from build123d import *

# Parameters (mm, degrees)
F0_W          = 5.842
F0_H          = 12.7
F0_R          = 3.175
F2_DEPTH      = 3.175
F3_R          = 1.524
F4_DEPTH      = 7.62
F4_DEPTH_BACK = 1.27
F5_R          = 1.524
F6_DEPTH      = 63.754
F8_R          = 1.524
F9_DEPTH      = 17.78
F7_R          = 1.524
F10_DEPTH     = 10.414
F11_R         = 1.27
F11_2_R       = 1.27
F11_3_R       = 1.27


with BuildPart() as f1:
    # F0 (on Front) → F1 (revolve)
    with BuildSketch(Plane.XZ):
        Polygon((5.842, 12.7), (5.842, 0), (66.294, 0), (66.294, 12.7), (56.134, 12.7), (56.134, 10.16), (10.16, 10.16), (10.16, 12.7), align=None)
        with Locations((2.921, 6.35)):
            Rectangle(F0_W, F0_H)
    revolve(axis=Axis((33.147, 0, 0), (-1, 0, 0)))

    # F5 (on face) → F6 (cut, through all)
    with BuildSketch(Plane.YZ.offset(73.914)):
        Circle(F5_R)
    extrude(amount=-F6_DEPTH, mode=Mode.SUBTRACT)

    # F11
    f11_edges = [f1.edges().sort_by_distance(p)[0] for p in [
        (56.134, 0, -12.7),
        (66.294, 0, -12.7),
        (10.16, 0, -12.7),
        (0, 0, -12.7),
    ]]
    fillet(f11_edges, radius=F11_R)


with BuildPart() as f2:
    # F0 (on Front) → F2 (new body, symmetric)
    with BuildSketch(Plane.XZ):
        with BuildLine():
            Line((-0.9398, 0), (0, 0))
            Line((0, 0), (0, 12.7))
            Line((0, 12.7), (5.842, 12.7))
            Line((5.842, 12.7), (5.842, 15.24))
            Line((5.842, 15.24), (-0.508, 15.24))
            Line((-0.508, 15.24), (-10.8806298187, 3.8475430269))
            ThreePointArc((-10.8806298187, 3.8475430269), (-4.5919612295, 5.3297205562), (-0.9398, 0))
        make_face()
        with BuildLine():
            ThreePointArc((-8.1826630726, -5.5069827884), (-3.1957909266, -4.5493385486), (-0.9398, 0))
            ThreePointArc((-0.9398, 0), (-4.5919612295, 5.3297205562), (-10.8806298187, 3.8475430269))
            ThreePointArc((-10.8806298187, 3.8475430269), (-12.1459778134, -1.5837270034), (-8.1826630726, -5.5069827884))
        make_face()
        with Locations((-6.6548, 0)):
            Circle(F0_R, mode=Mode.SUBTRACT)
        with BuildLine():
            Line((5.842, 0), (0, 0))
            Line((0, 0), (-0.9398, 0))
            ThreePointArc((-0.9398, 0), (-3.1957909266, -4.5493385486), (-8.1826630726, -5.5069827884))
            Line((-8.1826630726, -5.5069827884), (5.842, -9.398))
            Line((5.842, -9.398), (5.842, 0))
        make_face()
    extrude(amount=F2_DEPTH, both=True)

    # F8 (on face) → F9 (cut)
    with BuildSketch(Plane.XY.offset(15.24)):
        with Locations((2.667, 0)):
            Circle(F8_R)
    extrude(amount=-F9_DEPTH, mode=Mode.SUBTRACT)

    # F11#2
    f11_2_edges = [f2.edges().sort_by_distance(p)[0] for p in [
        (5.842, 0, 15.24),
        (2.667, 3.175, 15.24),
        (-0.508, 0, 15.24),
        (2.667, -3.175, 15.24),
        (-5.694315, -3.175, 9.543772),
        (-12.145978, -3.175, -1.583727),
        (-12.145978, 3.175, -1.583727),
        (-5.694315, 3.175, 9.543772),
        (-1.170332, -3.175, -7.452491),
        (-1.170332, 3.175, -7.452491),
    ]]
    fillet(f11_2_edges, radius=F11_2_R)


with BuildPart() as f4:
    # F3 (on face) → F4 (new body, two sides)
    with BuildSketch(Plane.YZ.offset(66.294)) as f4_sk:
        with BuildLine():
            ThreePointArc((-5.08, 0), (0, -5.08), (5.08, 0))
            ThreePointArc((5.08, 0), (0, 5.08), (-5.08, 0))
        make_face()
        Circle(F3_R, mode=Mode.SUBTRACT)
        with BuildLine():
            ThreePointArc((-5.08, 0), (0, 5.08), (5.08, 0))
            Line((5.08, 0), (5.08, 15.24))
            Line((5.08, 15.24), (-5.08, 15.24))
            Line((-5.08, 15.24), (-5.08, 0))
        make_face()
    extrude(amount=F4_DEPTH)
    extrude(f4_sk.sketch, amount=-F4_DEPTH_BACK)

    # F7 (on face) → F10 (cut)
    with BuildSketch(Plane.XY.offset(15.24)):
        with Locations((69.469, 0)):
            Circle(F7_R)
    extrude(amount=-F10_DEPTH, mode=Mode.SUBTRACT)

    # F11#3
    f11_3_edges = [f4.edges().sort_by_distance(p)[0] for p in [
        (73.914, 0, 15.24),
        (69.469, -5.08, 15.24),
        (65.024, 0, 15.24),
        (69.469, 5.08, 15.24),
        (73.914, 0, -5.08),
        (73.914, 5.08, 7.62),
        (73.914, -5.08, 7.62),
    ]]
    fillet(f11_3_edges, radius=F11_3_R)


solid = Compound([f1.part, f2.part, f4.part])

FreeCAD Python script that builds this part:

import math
import FreeCAD as App
import Part
import Sketcher

V = App.Vector
Q = App.Units.Quantity


def edges_at(feature, points):
    """Names of the edges that pass closest to the given points."""
    edges = feature.Shape.Edges
    near = lambda p: min(range(len(edges)), key=lambda i: edges[i].distToShape(Part.Vertex(*p))[0])
    return sorted({f"Edge{near(p) + 1}" for p in points})


def add_polygon(sketch, points):
    """Adds a closed chain of lines whose ends are joined by coincident constraints."""
    first, n = sketch.GeometryCount, len(points)
    for a, b in zip(points, points[1:] + points[:1]):
        sketch.addGeometry(Part.LineSegment(App.Vector(*a, 0), App.Vector(*b, 0)), False)
    for i in range(n):
        sketch.addConstraint(Sketcher.Constraint("Coincident", first + i, 2, first + (i + 1) % n, 1))

doc = App.newDocument("Part")
params = doc.addObject("Spreadsheet::Sheet", "Params")
for row, (alias, value) in enumerate([
    ("sketch1_width", "0.4 in"),
    ("sketch1_height", "0.5 in"),
    ("sketch1_height2", "0.1 in"),
    ("sketch1_width2", "1.81 in"),
    ("revolution_angle", "360 deg"),
    ("sketch2_diameter", "0.12 in"),
    ("pocket1_length", "2.51 in"),
    ("fillet_radius", "0.05 in"),
    ("sketch3_diameter", "0.25 in"),
    ("sketch3_height", "0.5 in"),
    ("sketch3_height2", "0.1 in"),
    ("sketch3_radius", "0.225 in"),
    ("sketch3_width", "0.23 in"),
    ("pad1_length", "0.25 in"),
    ("sketch4_diameter", "0.12 in"),
    ("pocket2_length", "0.7 in"),
    ("fillet2_radius", "0.05 in"),
    ("sketch5_radius", "0.2 in"),
    ("sketch5_diameter", "0.12 in"),
    ("sketch5_height", "0.6 in"),
    ("pad2_length", "0.3 in"),
    ("pad2_length2", "0.05 in"),
    ("sketch6_diameter", "0.12 in"),
    ("pocket3_length", "0.41 in"),
    ("fillet3_radius", "0.05 in"),
], start=1):
    params.set(f"A{row}", alias)
    params.set(f"B{row}", "=" + value)
    params.setAlias(f"B{row}", alias)

body = doc.addObject("PartDesign::Body", "Body")

# Sketch on XZ plane
sketch1 = body.newObject("Sketcher::SketchObject", "Sketch")
sketch1.AttachmentSupport = (doc.getObject("XZ_Plane"), [""])
sketch1.MapMode = "FlatFace"
add_polygon(sketch1, [(66.3, 0), (66.3, 12.7), (56.1, 12.7), (56.1, 10.2), (10.2, 10.2), (10.2, 12.7), (0, 12.7), (0, 0)])  # lines 0-7
sketch1.addConstraint(Sketcher.Constraint("Vertical", 0))
sketch1.addConstraint(Sketcher.Constraint("Horizontal", 1))
sketch1.addConstraint(Sketcher.Constraint("Vertical", 2))
sketch1.addConstraint(Sketcher.Constraint("Horizontal", 3))
sketch1.addConstraint(Sketcher.Constraint("Vertical", 4))
sketch1.addConstraint(Sketcher.Constraint("Horizontal", 5))
sketch1.addConstraint(Sketcher.Constraint("Vertical", 6))
sketch1.addConstraint(Sketcher.Constraint("Horizontal", 7))
sketch1.addConstraint(Sketcher.Constraint("Coincident", 6, 2, -1, 1))
sketch1.addConstraint(Sketcher.Constraint("Horizontal", 1, 2, 4, 2))
sketch1.addConstraint(Sketcher.Constraint("Equal", 1, 5))
sketch1.addConstraint(Sketcher.Constraint("DistanceX", 1, 2, 1, 1, Q("0.4 in")))
sketch1.addConstraint(Sketcher.Constraint("DistanceY", 0, 1, 0, 2, Q("0.5 in")))
sketch1.addConstraint(Sketcher.Constraint("DistanceY", 2, 2, 2, 1, Q("0.1 in")))
sketch1.addConstraint(Sketcher.Constraint("DistanceX", 3, 2, 3, 1, Q("1.81 in")))
sketch1.setExpression("Constraints[19]", "Params.sketch1_width")
sketch1.setExpression("Constraints[20]", "Params.sketch1_height")
sketch1.setExpression("Constraints[21]", "Params.sketch1_height2")
sketch1.setExpression("Constraints[22]", "Params.sketch1_width2")
revolution = body.newObject("PartDesign::Revolution", "Revolution")
revolution.Profile = sketch1
revolution.ReferenceAxis = (sketch1, ["H_Axis"])
revolution.setExpression("Angle", "Params.revolution_angle")

# Sketch on YZ plane
sketch2 = body.newObject("Sketcher::SketchObject", "Sketch001")
sketch2.AttachmentSupport = (doc.getObject("YZ_Plane"), [""])
sketch2.MapMode = "FlatFace"
sketch2.AttachmentOffset = App.Placement(V(0, 0, 2.91 * 25.4), App.Rotation())
sketch2.addGeometry(Part.Circle(V(0, 0, 0), V(0, 0, 1), 1.5), False)
sketch2.addConstraint(Sketcher.Constraint("Coincident", 0, 3, -1, 1))
sketch2.addConstraint(Sketcher.Constraint("Diameter", 0, Q("0.12 in")))
sketch2.setExpression("Constraints[1]", "Params.sketch2_diameter")
pocket1 = body.newObject("PartDesign::Pocket", "Pocket")
pocket1.Profile = sketch2
pocket1.setExpression("Length", "Params.pocket1_length")
doc.recompute()

fillet = body.newObject("PartDesign::Fillet", "Fillet")
fillet.Base = (pocket1, edges_at(pocket1, [
    (56.134, 0, -12.7),
    (66.294, 0, -12.7),
    (10.16, 0, -12.7),
    (0, 0, -12.7),
]))
fillet.setExpression("Radius", "Params.fillet_radius")
body2 = doc.addObject("PartDesign::Body", "Body001")

# Sketch on XZ plane
sketch3 = body2.newObject("Sketcher::SketchObject", "Sketch002")
sketch3.AttachmentSupport = (doc.getObject("XZ_Plane001"), [""])
sketch3.MapMode = "FlatFace"
sketch3.addGeometry(Part.LineSegment(V(0, 0, 0), V(0, 12.7, 0)), False)
sketch3.addGeometry(Part.LineSegment(V(0, 12.7, 0), V(5.8, 12.7, 0)), False)
sketch3.addGeometry(Part.LineSegment(V(5.8, 12.7, 0), V(5.8, 15.2, 0)), False)
sketch3.addGeometry(Part.LineSegment(V(5.8, 15.2, 0), V(-0.5, 15.2, 0)), False)
sketch3.addGeometry(Part.LineSegment(V(-0.5, 15.2, 0), V(-10.9, 3.8, 0)), False)
sketch3.addGeometry(Part.ArcOfCircle(Part.Circle(V(-6.7, 0, 0), V(0, 0, 1), 5.7), math.radians(138), math.radians(254)), False)
sketch3.addGeometry(Part.LineSegment(V(-8.2, -5.5, 0), V(5.8, -9.4, 0)), False)
sketch3.addGeometry(Part.LineSegment(V(5.8, -9.4, 0), V(5.8, 0, 0)), False)
sketch3.addGeometry(Part.LineSegment(V(5.8, 0, 0), V(0, 0, 0)), False)
sketch3.addGeometry(Part.Circle(V(-6.7, 0, 0), V(0, 0, 1), 3.2), False)
sketch3.addConstraint(Sketcher.Constraint("Coincident", 0, 2, 1, 1))
sketch3.addConstraint(Sketcher.Constraint("Coincident", 1, 2, 2, 1))
sketch3.addConstraint(Sketcher.Constraint("Coincident", 2, 2, 3, 1))
sketch3.addConstraint(Sketcher.Constraint("Coincident", 3, 2, 4, 1))
sketch3.addConstraint(Sketcher.Constraint("Tangent", 4, 2, 5, 1))
sketch3.addConstraint(Sketcher.Constraint("Tangent", 5, 2, 6, 1))
sketch3.addConstraint(Sketcher.Constraint("Coincident", 6, 2, 7, 1))
sketch3.addConstraint(Sketcher.Constraint("Coincident", 7, 2, 8, 1))
sketch3.addConstraint(Sketcher.Constraint("Coincident", 8, 2, 0, 1))
sketch3.addConstraint(Sketcher.Constraint("Vertical", 0))
sketch3.addConstraint(Sketcher.Constraint("Horizontal", 1))
sketch3.addConstraint(Sketcher.Constraint("Vertical", 2))
sketch3.addConstraint(Sketcher.Constraint("Horizontal", 3))
sketch3.addConstraint(Sketcher.Constraint("Vertical", 7))
sketch3.addConstraint(Sketcher.Constraint("Horizontal", 8))
sketch3.addConstraint(Sketcher.Constraint("Coincident", 8, 2, -1, 1))
sketch3.addConstraint(Sketcher.Constraint("Coincident", 9, 3, 5, 3))
sketch3.addConstraint(Sketcher.Constraint("PointOnObject", 5, 3, -1))
sketch3.addConstraint(Sketcher.Constraint("Vertical", 2, 2, 6, 2))
sketch3.addConstraint(Sketcher.Constraint("Diameter", 9, Q("0.25 in")))
sketch3.addConstraint(Sketcher.Constraint("DistanceY", 0, 1, 0, 2, Q("0.5 in")))
sketch3.addConstraint(Sketcher.Constraint("DistanceY", 2, 1, 2, 2, Q("0.1 in")))
sketch3.addConstraint(Sketcher.Constraint("Radius", 5, Q("0.225 in")))
sketch3.addConstraint(Sketcher.Constraint("DistanceX", 1, 1, 1, 2, Q("0.23 in")))
sketch3.addConstraint(Sketcher.Constraint("DistanceX", 3, 2, 3, 1, Q("0.25 in")))
sketch3.addConstraint(Sketcher.Constraint("DistanceY", 7, 1, 7, 2, Q("0.37 in")))
sketch3.addConstraint(Sketcher.Constraint("DistanceX", 5, 3, -1, 1, Q("0.262 in")))
sketch3.setExpression("Constraints[19]", "Params.sketch3_diameter")
sketch3.setExpression("Constraints[20]", "Params.sketch3_height")
sketch3.setExpression("Constraints[21]", "Params.sketch3_height2")
sketch3.setExpression("Constraints[22]", "Params.sketch3_radius")
sketch3.setExpression("Constraints[23]", "Params.sketch3_width")
pad1 = body2.newObject("PartDesign::Pad", "Pad")
pad1.Profile = sketch3
pad1.setExpression("Length", "Params.pad1_length")
pad1.Midplane = True

# Sketch on XY plane
sketch4 = body2.newObject("Sketcher::SketchObject", "Sketch003")
sketch4.AttachmentSupport = (doc.getObject("XY_Plane001"), [""])
sketch4.MapMode = "FlatFace"
sketch4.AttachmentOffset = App.Placement(V(0, 0, 0.6 * 25.4), App.Rotation())
sketch4.addGeometry(Part.Circle(V(2.7, 0, 0), V(0, 0, 1), 1.5), False)
sketch4.addConstraint(Sketcher.Constraint("PointOnObject", 0, 3, -1))
sketch4.addConstraint(Sketcher.Constraint("Diameter", 0, Q("0.12 in")))
sketch4.addConstraint(Sketcher.Constraint("DistanceX", -1, 1, 0, 3, Q("0.105 in")))
sketch4.setExpression("Constraints[1]", "Params.sketch4_diameter")
pocket2 = body2.newObject("PartDesign::Pocket", "Pocket001")
pocket2.Profile = sketch4
pocket2.setExpression("Length", "Params.pocket2_length")
doc.recompute()

fillet2 = body2.newObject("PartDesign::Fillet", "Fillet001")
fillet2.Base = (pocket2, edges_at(pocket2, [
    (5.842, 0, 15.24),
    (2.667, 3.175, 15.24),
    (-0.508, 0, 15.24),
    (2.667, -3.175, 15.24),
    (-5.694, -3.175, 9.544),
    (-12.146, -3.175, -1.584),
    (-12.146, 3.175, -1.584),
    (-5.694, 3.175, 9.544),
    (-1.17, -3.175, -7.452),
    (-1.17, 3.175, -7.452),
]))
fillet2.setExpression("Radius", "Params.fillet2_radius")
body3 = doc.addObject("PartDesign::Body", "Body002")

# Sketch on YZ plane
sketch5 = body3.newObject("Sketcher::SketchObject", "Sketch004")
sketch5.AttachmentSupport = (doc.getObject("YZ_Plane002"), [""])
sketch5.MapMode = "FlatFace"
sketch5.AttachmentOffset = App.Placement(V(0, 0, 2.61 * 25.4), App.Rotation())
sketch5.addGeometry(Part.ArcOfCircle(Part.Circle(V(0, 0, 0), V(0, 0, 1), 5.1), math.radians(180), math.radians(360)), False)
sketch5.addGeometry(Part.LineSegment(V(5.1, 0, 0), V(5.1, 15.2, 0)), False)
sketch5.addGeometry(Part.LineSegment(V(5.1, 15.2, 0), V(-5.1, 15.2, 0)), False)
sketch5.addGeometry(Part.LineSegment(V(-5.1, 15.2, 0), V(-5.1, 0, 0)), False)
sketch5.addGeometry(Part.Circle(V(0, 0, 0), V(0, 0, 1), 1.5), False)
sketch5.addConstraint(Sketcher.Constraint("Tangent", 0, 2, 1, 1))
sketch5.addConstraint(Sketcher.Constraint("Coincident", 1, 2, 2, 1))
sketch5.addConstraint(Sketcher.Constraint("Coincident", 2, 2, 3, 1))
sketch5.addConstraint(Sketcher.Constraint("Tangent", 3, 2, 0, 1))
sketch5.addConstraint(Sketcher.Constraint("Vertical", 1))
sketch5.addConstraint(Sketcher.Constraint("Horizontal", 2))
sketch5.addConstraint(Sketcher.Constraint("Vertical", 3))
sketch5.addConstraint(Sketcher.Constraint("Coincident", 0, 3, -1, 1))
sketch5.addConstraint(Sketcher.Constraint("Coincident", 4, 3, -1, 1))
sketch5.addConstraint(Sketcher.Constraint("Radius", 0, Q("0.2 in")))
sketch5.addConstraint(Sketcher.Constraint("Diameter", 4, Q("0.12 in")))
sketch5.addConstraint(Sketcher.Constraint("DistanceY", 1, 1, 1, 2, Q("0.6 in")))
sketch5.setExpression("Constraints[9]", "Params.sketch5_radius")
sketch5.setExpression("Constraints[10]", "Params.sketch5_diameter")
sketch5.setExpression("Constraints[11]", "Params.sketch5_height")
pad2 = body3.newObject("PartDesign::Pad", "Pad001")
pad2.Profile = sketch5
pad2.Type = "TwoLengths"
pad2.setExpression("Length", "Params.pad2_length")
pad2.setExpression("Length2", "Params.pad2_length2")

# Sketch on XY plane
sketch6 = body3.newObject("Sketcher::SketchObject", "Sketch005")
sketch6.AttachmentSupport = (doc.getObject("XY_Plane002"), [""])
sketch6.MapMode = "FlatFace"
sketch6.AttachmentOffset = App.Placement(V(0, 0, 0.6 * 25.4), App.Rotation())
sketch6.addGeometry(Part.Circle(V(69.5, 0, 0), V(0, 0, 1), 1.5), False)
sketch6.addConstraint(Sketcher.Constraint("PointOnObject", 0, 3, -1))
sketch6.addConstraint(Sketcher.Constraint("Diameter", 0, Q("0.12 in")))
sketch6.addConstraint(Sketcher.Constraint("DistanceX", -1, 1, 0, 3, Q("2.735 in")))
sketch6.setExpression("Constraints[1]", "Params.sketch6_diameter")
pocket3 = body3.newObject("PartDesign::Pocket", "Pocket002")
pocket3.Profile = sketch6
pocket3.setExpression("Length", "Params.pocket3_length")
doc.recompute()

fillet3 = body3.newObject("PartDesign::Fillet", "Fillet002")
fillet3.Base = (pocket3, edges_at(pocket3, [
    (73.914, 0, 15.24),
    (69.469, -5.08, 15.24),
    (65.024, 0, 15.24),
    (69.469, 5.08, 15.24),
    (73.914, 0, -5.08),
    (73.914, 5.08, 7.62),
    (73.914, -5.08, 7.62),
]))
fillet3.setExpression("Radius", "Params.fillet3_radius")

doc.recompute()
